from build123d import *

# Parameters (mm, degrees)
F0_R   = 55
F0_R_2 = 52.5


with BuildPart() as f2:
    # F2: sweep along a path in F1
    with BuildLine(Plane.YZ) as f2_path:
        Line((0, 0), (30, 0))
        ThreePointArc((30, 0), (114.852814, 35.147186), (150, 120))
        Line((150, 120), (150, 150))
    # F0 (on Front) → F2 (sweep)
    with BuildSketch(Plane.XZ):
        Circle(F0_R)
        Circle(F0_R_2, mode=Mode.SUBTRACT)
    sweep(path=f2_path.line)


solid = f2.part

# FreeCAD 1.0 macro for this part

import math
import FreeCAD as App
import Part
import Sketcher
Q = App.Units.Quantity

doc = App.newDocument("Part")
body = doc.addObject("PartDesign::Body", "Body")

# Sketch on XZ plane
sketch1 = body.newObject("Sketcher::SketchObject", "Sketch")
sketch1.AttachmentSupport = (doc.getObject("XZ_Plane"), [""])
sketch1.MapMode = "FlatFace"
sketch1.addGeometry(Part.Circle(App.Vector(0, 0, 0), App.Vector(0, 0, 1), 55), False)
sketch1.addGeometry(Part.Circle(App.Vector(0, 0, 0), App.Vector(0, 0, 1), 52), False)
sketch1.addConstraint(Sketcher.Constraint("Coincident", 0, 3, -1, 1))
sketch1.addConstraint(Sketcher.Constraint("Coincident", 1, 3, -1, 1))
sketch1.addConstraint(Sketcher.Constraint("Diameter", 0, Q("110 mm")))
sketch1.addConstraint(Sketcher.Constraint("Diameter", 1, Q("105 mm")))

# Sketch on YZ plane
sketch2 = body.newObject("Sketcher::SketchObject", "Sketch001")
sketch2.AttachmentSupport = (doc.getObject("YZ_Plane"), [""])
sketch2.MapMode = "FlatFace"
sketch2.addGeometry(Part.LineSegment(App.Vector(0, 0, 0), App.Vector(30, 0, 0)), False)
sketch2.addGeometry(Part.ArcOfCircle(Part.Circle(App.Vector(30, 120, 0), App.Vector(0, 0, 1), 120), math.radians(-90), math.radians(0)), False)
sketch2.addGeometry(Part.LineSegment(App.Vector(150, 120, 0), App.Vector(150, 150, 0)), False)
sketch2.addConstraint(Sketcher.Constraint("Tangent", 0, 2, 1, 1))
sketch2.addConstraint(Sketcher.Constraint("Tangent", 1, 2, 2, 1))
sketch2.addConstraint(Sketcher.Constraint("Horizontal", 0))
sketch2.addConstraint(Sketcher.Constraint("Vertical", 2))
sketch2.addConstraint(Sketcher.Constraint("Coincident", 0, 1, -1, 1))
sketch2.addConstraint(Sketcher.Constraint("Equal", 0, 2))
sketch2.addConstraint(Sketcher.Constraint("Radius", 1, Q("119.999999 mm")))
sketch2.addConstraint(Sketcher.Constraint("DistanceX", 0, 1, 0, 2, Q("30 mm")))
doc.recompute()

additivepipe = body.newObject("PartDesign::AdditivePipe", "AdditivePipe")
additivepipe.Profile = sketch1
additivepipe.Spine = (sketch2, ["Edge1", "Edge2", "Edge3"])

doc.recompute()
